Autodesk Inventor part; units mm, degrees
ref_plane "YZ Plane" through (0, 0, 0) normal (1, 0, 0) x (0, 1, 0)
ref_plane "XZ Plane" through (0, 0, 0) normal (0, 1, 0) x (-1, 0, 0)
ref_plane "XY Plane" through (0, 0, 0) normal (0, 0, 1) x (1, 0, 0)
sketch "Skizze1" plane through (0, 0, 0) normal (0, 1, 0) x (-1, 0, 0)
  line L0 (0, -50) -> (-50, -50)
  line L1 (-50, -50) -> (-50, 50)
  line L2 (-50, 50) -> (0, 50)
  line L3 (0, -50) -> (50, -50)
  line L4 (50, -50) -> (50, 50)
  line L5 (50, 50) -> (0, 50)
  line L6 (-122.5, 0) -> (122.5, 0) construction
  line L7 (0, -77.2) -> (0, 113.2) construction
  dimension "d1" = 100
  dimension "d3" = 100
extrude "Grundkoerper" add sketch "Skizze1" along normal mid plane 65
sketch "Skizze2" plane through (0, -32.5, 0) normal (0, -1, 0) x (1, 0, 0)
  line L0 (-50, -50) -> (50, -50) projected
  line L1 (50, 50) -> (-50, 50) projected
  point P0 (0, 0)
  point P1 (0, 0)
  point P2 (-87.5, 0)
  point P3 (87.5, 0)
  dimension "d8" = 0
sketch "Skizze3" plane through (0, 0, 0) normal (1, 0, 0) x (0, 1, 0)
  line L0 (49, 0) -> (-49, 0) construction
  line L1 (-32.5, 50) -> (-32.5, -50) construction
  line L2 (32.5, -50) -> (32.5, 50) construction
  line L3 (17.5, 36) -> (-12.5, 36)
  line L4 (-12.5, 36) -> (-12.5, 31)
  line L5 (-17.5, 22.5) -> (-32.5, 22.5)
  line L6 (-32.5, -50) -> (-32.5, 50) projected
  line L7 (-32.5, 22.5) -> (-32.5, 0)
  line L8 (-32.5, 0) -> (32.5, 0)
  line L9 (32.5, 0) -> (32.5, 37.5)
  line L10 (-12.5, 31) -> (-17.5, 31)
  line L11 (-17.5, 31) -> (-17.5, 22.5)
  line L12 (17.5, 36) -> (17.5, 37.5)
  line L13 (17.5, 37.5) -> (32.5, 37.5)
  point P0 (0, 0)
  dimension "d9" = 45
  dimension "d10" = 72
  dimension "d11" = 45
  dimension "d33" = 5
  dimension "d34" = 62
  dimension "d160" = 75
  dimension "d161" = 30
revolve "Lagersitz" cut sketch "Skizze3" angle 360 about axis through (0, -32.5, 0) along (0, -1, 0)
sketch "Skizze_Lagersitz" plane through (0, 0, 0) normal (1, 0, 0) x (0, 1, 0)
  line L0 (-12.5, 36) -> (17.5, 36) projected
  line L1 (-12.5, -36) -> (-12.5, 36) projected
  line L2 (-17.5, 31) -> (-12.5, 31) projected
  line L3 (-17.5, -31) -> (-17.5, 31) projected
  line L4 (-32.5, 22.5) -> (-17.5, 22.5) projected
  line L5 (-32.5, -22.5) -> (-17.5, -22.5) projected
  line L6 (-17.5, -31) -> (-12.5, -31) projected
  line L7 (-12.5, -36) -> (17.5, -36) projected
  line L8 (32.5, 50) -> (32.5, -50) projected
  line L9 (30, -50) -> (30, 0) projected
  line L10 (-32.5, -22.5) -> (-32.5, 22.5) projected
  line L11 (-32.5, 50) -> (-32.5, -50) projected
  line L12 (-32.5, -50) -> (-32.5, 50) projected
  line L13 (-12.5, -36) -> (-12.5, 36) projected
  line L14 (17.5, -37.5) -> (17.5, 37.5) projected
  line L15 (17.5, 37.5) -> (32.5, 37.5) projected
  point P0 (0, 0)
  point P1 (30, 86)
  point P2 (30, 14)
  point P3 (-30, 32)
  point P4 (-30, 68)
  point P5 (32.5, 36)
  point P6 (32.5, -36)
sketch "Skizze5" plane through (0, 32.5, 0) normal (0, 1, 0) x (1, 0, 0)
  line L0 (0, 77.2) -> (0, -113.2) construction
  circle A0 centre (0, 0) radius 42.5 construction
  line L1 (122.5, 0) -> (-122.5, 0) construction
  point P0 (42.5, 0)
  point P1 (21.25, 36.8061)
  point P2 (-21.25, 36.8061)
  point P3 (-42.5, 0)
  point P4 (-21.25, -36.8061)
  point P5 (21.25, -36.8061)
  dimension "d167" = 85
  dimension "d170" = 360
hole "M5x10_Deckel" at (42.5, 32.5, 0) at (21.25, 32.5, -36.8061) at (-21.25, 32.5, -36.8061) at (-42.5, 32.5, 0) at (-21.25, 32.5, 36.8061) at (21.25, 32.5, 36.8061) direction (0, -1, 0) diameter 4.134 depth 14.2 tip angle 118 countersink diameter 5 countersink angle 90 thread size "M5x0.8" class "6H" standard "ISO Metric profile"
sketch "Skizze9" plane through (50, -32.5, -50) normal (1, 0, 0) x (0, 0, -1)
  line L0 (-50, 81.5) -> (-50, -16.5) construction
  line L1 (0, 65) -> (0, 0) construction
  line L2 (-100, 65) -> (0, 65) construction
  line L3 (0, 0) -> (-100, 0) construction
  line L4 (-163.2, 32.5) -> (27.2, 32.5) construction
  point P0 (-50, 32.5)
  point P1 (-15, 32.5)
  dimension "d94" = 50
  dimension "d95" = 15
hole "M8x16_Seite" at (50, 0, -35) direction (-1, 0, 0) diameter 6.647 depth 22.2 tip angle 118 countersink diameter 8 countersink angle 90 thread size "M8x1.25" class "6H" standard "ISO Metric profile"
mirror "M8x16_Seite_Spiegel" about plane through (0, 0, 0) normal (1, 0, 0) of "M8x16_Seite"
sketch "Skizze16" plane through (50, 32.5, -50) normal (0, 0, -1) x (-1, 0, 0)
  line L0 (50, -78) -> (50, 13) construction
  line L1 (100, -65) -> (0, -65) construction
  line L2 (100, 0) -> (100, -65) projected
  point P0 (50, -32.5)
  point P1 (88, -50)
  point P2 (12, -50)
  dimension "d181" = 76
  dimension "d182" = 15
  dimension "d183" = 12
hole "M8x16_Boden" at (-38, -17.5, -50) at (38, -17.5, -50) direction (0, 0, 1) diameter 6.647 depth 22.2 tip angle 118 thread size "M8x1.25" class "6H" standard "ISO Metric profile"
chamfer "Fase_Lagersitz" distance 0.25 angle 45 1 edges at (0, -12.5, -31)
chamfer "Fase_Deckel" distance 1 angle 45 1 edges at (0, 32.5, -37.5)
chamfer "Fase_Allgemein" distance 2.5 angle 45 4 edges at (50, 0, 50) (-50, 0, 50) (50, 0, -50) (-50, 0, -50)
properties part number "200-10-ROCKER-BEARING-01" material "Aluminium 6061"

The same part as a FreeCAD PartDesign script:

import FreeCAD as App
import Part
import Sketcher

V = App.Vector
Q = App.Units.Quantity


def edges_at(feature, points):
    """Names of the edges that pass closest to the given points."""
    edges = feature.Shape.Edges
    near = lambda p: min(range(len(edges)), key=lambda i: edges[i].distToShape(Part.Vertex(*p))[0])
    return sorted({f"Edge{near(p) + 1}" for p in points})

doc = App.newDocument("Part")
body = doc.addObject("PartDesign::Body", "Body")

sketch1 = body.newObject("Sketcher::SketchObject", "Sketch")
sketch1.AttachmentSupport = (doc.getObject("XZ_Plane"), [""])
sketch1.MapMode = "FlatFace"
sketch1.addGeometry([
    Part.LineSegment(V(50, -50, 0), V(-50, -50, 0)),
    Part.LineSegment(V(-50, -50, 0), V(-50, 50, 0)),
    Part.LineSegment(V(-50, 50, 0), V(50, 50, 0)),
    Part.LineSegment(V(50, 50, 0), V(50, -50, 0)),
], False)
sketch1.addConstraint([
    Sketcher.Constraint("Coincident", 0, 2, 1, 1),
    Sketcher.Constraint("Coincident", 1, 2, 2, 1),
    Sketcher.Constraint("Coincident", 2, 2, 3, 1),
    Sketcher.Constraint("Coincident", 3, 2, 0, 1),
    Sketcher.Constraint("Horizontal", 0),
    Sketcher.Constraint("Vertical", 1),
    Sketcher.Constraint("Horizontal", 2),
    Sketcher.Constraint("Vertical", 3),
    Sketcher.Constraint("Symmetric", 0, 2, 2, 2, -1, 1),
    Sketcher.Constraint("Equal", 2, 1),
    Sketcher.Constraint("DistanceX", 0, 2, 0, 1, Q("100 mm")),
])
pad1 = body.newObject("PartDesign::Pad", "Pad")
pad1.Profile = sketch1
pad1.Length = 65
pad1.Midplane = True

sketch2 = body.newObject("Sketcher::SketchObject", "Sketch001")
sketch2.AttachmentSupport = (doc.getObject("YZ_Plane"), [""])
sketch2.MapMode = "FlatFace"
sketch2.addGeometry([
    Part.LineSegment(V(17.5, 37.5, 0), V(17.5, 36, 0)),
    Part.LineSegment(V(17.5, 36, 0), V(-12.5, 36, 0)),
    Part.LineSegment(V(-12.5, 36, 0), V(-12.5, 31, 0)),
    Part.LineSegment(V(-12.5, 31, 0), V(-17.5, 31, 0)),
    Part.LineSegment(V(-17.5, 31, 0), V(-17.5, 22.5, 0)),
    Part.LineSegment(V(-17.5, 22.5, 0), V(-32.5, 22.5, 0)),
    Part.LineSegment(V(-32.5, 22.5, 0), V(-32.5, 0, 0)),
    Part.LineSegment(V(-32.5, 0, 0), V(32.5, 0, 0)),
    Part.LineSegment(V(32.5, 0, 0), V(32.5, 37.5, 0)),
    Part.LineSegment(V(32.5, 37.5, 0), V(17.5, 37.5, 0)),
], False)
sketch2.addConstraint([
    Sketcher.Constraint("Coincident", 0, 2, 1, 1),
    Sketcher.Constraint("Coincident", 1, 2, 2, 1),
    Sketcher.Constraint("Coincident", 2, 2, 3, 1),
    Sketcher.Constraint("Coincident", 3, 2, 4, 1),
    Sketcher.Constraint("Coincident", 4, 2, 5, 1),
    Sketcher.Constraint("Coincident", 5, 2, 6, 1),
    Sketcher.Constraint("Coincident", 6, 2, 7, 1),
    Sketcher.Constraint("Coincident", 7, 2, 8, 1),
    Sketcher.Constraint("Coincident", 8, 2, 9, 1),
    Sketcher.Constraint("Coincident", 9, 2, 0, 1),
    Sketcher.Constraint("Vertical", 0),
    Sketcher.Constraint("Horizontal", 1),
    Sketcher.Constraint("Vertical", 2),
    Sketcher.Constraint("Horizontal", 3),
    Sketcher.Constraint("Vertical", 4),
    Sketcher.Constraint("Horizontal", 5),
    Sketcher.Constraint("Vertical", 6),
    Sketcher.Constraint("Horizontal", 7),
    Sketcher.Constraint("Vertical", 8),
    Sketcher.Constraint("Horizontal", 9),
    Sketcher.Constraint("Symmetric", 6, 2, 7, 2, -1, 1),
    Sketcher.Constraint("Equal", 5, 9),
    Sketcher.Constraint("Equal", 3, 2),
    Sketcher.Constraint("DistanceX", 1, 2, 1, 1, Q("30 mm")),
    Sketcher.Constraint("DistanceX", 3, 2, 3, 1, Q("5 mm")),
    Sketcher.Constraint("DistanceX", 2, 2, 7, 2, Q("45 mm")),
    Sketcher.Constraint("DistanceY", 0, 2, 0, 1, Q("1.5 mm")),
    Sketcher.Constraint("DistanceY", 4, 2, 4, 1, Q("8.5 mm")),
    Sketcher.Constraint("DistanceY", 6, 2, 6, 1, Q("22.5 mm")),
])
groove = body.newObject("PartDesign::Groove", "Groove")
groove.Profile = sketch2
groove.ReferenceAxis = (sketch2, ["H_Axis"])
groove.Angle = 360

sketch3 = body.newObject("Sketcher::SketchObject", "Sketch002")
sketch3.AttachmentSupport = (doc.getObject("XZ_Plane"), [""])
sketch3.MapMode = "FlatFace"
sketch3.AttachmentOffset = App.Placement(V(0, 0, -32.5), App.Rotation())
sketch3.addGeometry([
    Part.Circle(V(42.5, 0, 0), V(0, 0, 1), 2.067),
    Part.Circle(V(21.25, -36.8061, 0), V(0, 0, 1), 2.067),
    Part.Circle(V(-21.25, -36.8061, 0), V(0, 0, 1), 2.067),
    Part.Circle(V(-42.5, 0, 0), V(0, 0, 1), 2.067),
    Part.Circle(V(-21.25, 36.8061, 0), V(0, 0, 1), 2.067),
    Part.Circle(V(21.25, 36.8061, 0), V(0, 0, 1), 2.067),
], False)
sketch3.addConstraint([
    Sketcher.Constraint("Equal", 0, 1),
    Sketcher.Constraint("Equal", 1, 2),
    Sketcher.Constraint("Equal", 2, 3),
    Sketcher.Constraint("Equal", 3, 4),
    Sketcher.Constraint("Equal", 4, 5),
    Sketcher.Constraint("Symmetric", 0, 3, 3, 3, -1, 1),
    Sketcher.Constraint("Symmetric", 1, 3, 4, 3, -1, 1),
    Sketcher.Constraint("Symmetric", 2, 3, 5, 3, -1, 1),
    Sketcher.Constraint("Symmetric", 1, 3, 2, 3, -2),
    Sketcher.Constraint("PointOnObject", 0, 3, -1),
    Sketcher.Constraint("Diameter", 0, Q("4.134 mm")),
    Sketcher.Constraint("DistanceX", 3, 3, 0, 3, Q("85 mm")),
    Sketcher.Constraint("DistanceX", 2, 3, 1, 3, Q("42.5 mm")),
    Sketcher.Constraint("DistanceY", 1, 3, -1, 1, Q("36.806 mm")),
])
doc.recompute()
hole = body.newObject("PartDesign::Hole", "Hole")
hole.Profile = sketch3
hole.ThreadType = "None"
hole.Diameter = 4.134
hole.DepthType = "Dimension"
hole.Depth = 14.2
hole.DrillPoint = "Angled"
hole.DrillPointAngle = 118
hole.HoleCutType = "Countersink"
hole.HoleCutDiameter = 5
hole.HoleCutCountersinkAngle = 90
hole.Reversed = True

sketch4 = body.newObject("Sketcher::SketchObject", "Sketch003")
sketch4.AttachmentSupport = (doc.getObject("YZ_Plane"), [""])
sketch4.MapMode = "FlatFace"
sketch4.AttachmentOffset = App.Placement(V(0, 0, 50), App.Rotation())
sketch4.addGeometry(Part.Circle(V(0, -35, 0), V(0, 0, 1), 3.3235), False)
sketch4.addConstraint([
    Sketcher.Constraint("PointOnObject", 0, 3, -2),
    Sketcher.Constraint("Diameter", 0, Q("6.647 mm")),
    Sketcher.Constraint("DistanceY", 0, 3, -1, 1, Q("35 mm")),
])
doc.recompute()
hole2 = body.newObject("PartDesign::Hole", "Hole001")
hole2.Profile = sketch4
hole2.ThreadType = "None"
hole2.Diameter = 6.647
hole2.DepthType = "Dimension"
hole2.Depth = 22.2
hole2.DrillPoint = "Angled"
hole2.DrillPointAngle = 118
hole2.HoleCutType = "Countersink"
hole2.HoleCutDiameter = 8
hole2.HoleCutCountersinkAngle = 90
doc.recompute()

mirrored = body.newObject("PartDesign::Mirrored", "Mirrored")
mirrored.Originals = [hole2]
mirrored.MirrorPlane = (doc.getObject("YZ_Plane"), [""])
body.Tip = mirrored

sketch5 = body.newObject("Sketcher::SketchObject", "Sketch004")
sketch5.AttachmentSupport = (doc.getObject("XY_Plane"), [""])
sketch5.MapMode = "FlatFace"
sketch5.AttachmentOffset = App.Placement(V(0, 0, -50), App.Rotation())
sketch5.addGeometry([
    Part.Circle(V(-38, -17.5, 0), V(0, 0, 1), 3.3235),
    Part.Circle(V(38, -17.5, 0), V(0, 0, 1), 3.3235),
], False)
sketch5.addConstraint([
    Sketcher.Constraint("Equal", 0, 1),
    Sketcher.Constraint("Symmetric", 0, 3, 1, 3, -2),
    Sketcher.Constraint("Diameter", 0, Q("6.647 mm")),
    Sketcher.Constraint("DistanceX", 0, 3, -1, 1, Q("38 mm")),
    Sketcher.Constraint("DistanceY", 0, 3, -1, 1, Q("17.5 mm")),
])
doc.recompute()
hole3 = body.newObject("PartDesign::Hole", "Hole002")
hole3.Profile = sketch5
hole3.ThreadType = "None"
hole3.Diameter = 6.647
hole3.DepthType = "Dimension"
hole3.Depth = 22.2
hole3.DrillPoint = "Angled"
hole3.DrillPointAngle = 118
hole3.Reversed = True
doc.recompute()

chamfer = body.newObject("PartDesign::Chamfer", "Chamfer")
chamfer.Base = (hole3, edges_at(hole3, [(0, -12.5, -31)]))
chamfer.Size = 0.25
doc.recompute()

chamfer2 = body.newObject("PartDesign::Chamfer", "Chamfer001")
chamfer2.Base = (chamfer, edges_at(chamfer, [(0, 32.5, -37.5)]))
chamfer2.Size = 1
doc.recompute()

chamfer3 = body.newObject("PartDesign::Chamfer", "Chamfer002")
chamfer3.Base = (chamfer2, edges_at(chamfer2, [
    (50, 0, 50),
    (-50, 0, 50),
    (50, 0, -50),
    (-50, 0, -50),
]))
chamfer3.Size = 2.5

doc.recompute()
